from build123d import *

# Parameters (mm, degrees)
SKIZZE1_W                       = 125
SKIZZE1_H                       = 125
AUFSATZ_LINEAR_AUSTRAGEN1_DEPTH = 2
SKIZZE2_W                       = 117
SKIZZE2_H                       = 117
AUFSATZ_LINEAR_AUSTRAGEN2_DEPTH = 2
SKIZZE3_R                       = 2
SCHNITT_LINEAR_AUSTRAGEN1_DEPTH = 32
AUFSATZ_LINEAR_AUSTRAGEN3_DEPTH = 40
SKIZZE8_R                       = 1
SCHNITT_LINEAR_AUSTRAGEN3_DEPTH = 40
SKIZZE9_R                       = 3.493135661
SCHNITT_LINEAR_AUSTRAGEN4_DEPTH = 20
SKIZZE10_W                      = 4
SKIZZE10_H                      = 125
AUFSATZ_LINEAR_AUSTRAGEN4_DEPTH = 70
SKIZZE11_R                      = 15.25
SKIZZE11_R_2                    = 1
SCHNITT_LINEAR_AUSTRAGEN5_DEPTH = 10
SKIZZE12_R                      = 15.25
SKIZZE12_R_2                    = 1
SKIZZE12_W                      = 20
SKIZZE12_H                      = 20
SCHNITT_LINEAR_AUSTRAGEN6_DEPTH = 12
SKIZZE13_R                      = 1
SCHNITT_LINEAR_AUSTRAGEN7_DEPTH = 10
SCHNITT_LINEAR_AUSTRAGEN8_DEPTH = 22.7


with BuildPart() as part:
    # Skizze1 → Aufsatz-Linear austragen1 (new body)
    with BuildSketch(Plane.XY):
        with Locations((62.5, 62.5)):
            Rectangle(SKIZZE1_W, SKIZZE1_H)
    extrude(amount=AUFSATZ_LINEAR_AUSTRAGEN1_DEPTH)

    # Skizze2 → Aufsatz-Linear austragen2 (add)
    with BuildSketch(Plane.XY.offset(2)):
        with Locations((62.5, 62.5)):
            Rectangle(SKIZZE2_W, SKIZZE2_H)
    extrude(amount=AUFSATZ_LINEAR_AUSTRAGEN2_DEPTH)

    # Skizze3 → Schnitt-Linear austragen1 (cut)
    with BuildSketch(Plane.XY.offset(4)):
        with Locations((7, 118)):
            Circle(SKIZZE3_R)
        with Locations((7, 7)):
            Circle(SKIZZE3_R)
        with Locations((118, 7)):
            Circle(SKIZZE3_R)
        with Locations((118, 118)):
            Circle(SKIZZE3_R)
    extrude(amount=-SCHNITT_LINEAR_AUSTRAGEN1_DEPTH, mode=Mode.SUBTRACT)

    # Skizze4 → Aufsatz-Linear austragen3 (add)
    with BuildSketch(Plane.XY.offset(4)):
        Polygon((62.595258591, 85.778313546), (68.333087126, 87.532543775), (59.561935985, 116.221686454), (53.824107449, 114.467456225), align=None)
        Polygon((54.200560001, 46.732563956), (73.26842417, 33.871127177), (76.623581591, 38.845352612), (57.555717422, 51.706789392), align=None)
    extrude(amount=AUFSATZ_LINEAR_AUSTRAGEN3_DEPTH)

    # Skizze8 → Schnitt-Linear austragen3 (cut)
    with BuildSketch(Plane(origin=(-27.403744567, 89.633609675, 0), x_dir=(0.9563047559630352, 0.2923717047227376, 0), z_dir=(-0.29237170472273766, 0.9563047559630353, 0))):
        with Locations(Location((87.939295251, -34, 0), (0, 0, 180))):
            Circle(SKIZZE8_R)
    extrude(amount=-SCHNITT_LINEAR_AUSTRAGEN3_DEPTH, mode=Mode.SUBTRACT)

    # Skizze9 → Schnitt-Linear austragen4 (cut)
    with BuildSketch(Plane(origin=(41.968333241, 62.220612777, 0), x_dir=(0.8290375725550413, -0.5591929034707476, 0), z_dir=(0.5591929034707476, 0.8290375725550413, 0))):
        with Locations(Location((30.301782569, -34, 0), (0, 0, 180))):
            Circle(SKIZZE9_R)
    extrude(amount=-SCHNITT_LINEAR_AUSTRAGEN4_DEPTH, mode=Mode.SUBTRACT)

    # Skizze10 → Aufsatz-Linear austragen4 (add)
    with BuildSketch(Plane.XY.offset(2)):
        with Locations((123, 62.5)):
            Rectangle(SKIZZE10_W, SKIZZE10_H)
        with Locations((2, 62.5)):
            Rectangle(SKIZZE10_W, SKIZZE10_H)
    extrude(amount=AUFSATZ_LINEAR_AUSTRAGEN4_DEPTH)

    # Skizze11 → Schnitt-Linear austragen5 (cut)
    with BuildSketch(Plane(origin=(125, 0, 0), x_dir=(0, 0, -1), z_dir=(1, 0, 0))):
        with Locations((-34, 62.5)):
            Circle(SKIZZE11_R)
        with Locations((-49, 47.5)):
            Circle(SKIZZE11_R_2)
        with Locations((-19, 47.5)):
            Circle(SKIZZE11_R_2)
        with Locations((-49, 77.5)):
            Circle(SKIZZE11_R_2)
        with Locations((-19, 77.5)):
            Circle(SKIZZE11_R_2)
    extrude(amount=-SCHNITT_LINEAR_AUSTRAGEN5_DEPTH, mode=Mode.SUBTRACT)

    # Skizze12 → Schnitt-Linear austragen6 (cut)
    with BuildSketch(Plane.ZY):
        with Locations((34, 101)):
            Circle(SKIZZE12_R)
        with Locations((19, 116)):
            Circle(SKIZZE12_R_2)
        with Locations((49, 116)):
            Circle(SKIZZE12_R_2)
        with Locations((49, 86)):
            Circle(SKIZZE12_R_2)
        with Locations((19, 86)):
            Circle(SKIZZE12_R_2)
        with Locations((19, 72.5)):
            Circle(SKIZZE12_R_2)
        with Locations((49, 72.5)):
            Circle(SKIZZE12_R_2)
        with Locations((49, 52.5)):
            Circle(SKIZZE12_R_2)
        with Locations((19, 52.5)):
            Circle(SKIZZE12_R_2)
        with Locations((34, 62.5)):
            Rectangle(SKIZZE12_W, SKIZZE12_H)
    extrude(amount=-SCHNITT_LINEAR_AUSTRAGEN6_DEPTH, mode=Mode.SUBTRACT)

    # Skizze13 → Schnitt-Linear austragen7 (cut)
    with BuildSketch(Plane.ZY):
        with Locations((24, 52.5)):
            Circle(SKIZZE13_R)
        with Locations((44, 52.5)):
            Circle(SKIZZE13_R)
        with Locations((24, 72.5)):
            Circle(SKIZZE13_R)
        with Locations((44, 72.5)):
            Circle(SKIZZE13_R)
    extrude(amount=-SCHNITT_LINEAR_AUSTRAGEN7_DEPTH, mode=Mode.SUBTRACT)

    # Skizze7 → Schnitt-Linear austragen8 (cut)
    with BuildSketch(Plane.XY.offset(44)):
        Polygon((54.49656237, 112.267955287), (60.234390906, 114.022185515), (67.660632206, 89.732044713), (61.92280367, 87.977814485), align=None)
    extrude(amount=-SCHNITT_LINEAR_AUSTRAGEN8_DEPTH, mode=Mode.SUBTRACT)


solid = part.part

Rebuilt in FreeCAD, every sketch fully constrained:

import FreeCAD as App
import Part
import Sketcher
from FreeCAD import Vector
Q = App.Units.Quantity


def add_polygon(sketch, points):
    """Adds a closed chain of lines whose ends are joined by coincident constraints."""
    first, n = sketch.GeometryCount, len(points)
    for a, b in zip(points, points[1:] + points[:1]):
        sketch.addGeometry(Part.LineSegment(App.Vector(*a, 0), App.Vector(*b, 0)), False)
    for i in range(n):
        sketch.addConstraint(Sketcher.Constraint("Coincident", first + i, 2, first + (i + 1) % n, 1))

doc = App.newDocument("Part")
body = doc.addObject("PartDesign::Body", "Body")

# Sketch on XY plane
sketch1 = body.newObject("Sketcher::SketchObject", "Sketch")
sketch1.AttachmentSupport = (doc.getObject("XY_Plane"), [""])
sketch1.MapMode = "FlatFace"
add_polygon(sketch1, [(0, 125), (0, 0), (125, 0), (125, 125)])  # lines 0-3
sketch1.addConstraint(Sketcher.Constraint("Vertical", 0))
sketch1.addConstraint(Sketcher.Constraint("Horizontal", 1))
sketch1.addConstraint(Sketcher.Constraint("Vertical", 2))
sketch1.addConstraint(Sketcher.Constraint("Horizontal", 3))
sketch1.addConstraint(Sketcher.Constraint("Coincident", 0, 2, -1, 1))
sketch1.addConstraint(Sketcher.Constraint("Equal", 3, 0))
sketch1.addConstraint(Sketcher.Constraint("DistanceX", 1, 1, 1, 2, Q("125 mm")))
pad1 = body.newObject("PartDesign::Pad", "Pad")
pad1.Profile = sketch1
pad1.Length = 2

# Sketch on XY plane
sketch2 = body.newObject("Sketcher::SketchObject", "Sketch001")
sketch2.AttachmentSupport = (doc.getObject("XY_Plane"), [""])
sketch2.MapMode = "FlatFace"
sketch2.AttachmentOffset = App.Placement(Vector(0, 0, 2), App.Rotation())
add_polygon(sketch2, [(4, 121), (4, 4), (121, 4), (121, 121)])  # lines 0-3
sketch2.addConstraint(Sketcher.Constraint("Vertical", 0))
sketch2.addConstraint(Sketcher.Constraint("Horizontal", 1))
sketch2.addConstraint(Sketcher.Constraint("Vertical", 2))
sketch2.addConstraint(Sketcher.Constraint("Horizontal", 3))
sketch2.addConstraint(Sketcher.Constraint("Equal", 3, 0))
sketch2.addConstraint(Sketcher.Constraint("DistanceX", 1, 1, 1, 2, Q("117 mm")))
sketch2.addConstraint(Sketcher.Constraint("DistanceX", -1, 1, 0, 2, Q("4 mm")))
sketch2.addConstraint(Sketcher.Constraint("DistanceY", -1, 1, 0, 2, Q("4 mm")))
pad2 = body.newObject("PartDesign::Pad", "Pad001")
pad2.Profile = sketch2
pad2.Length = 2

# Sketch on XY plane
sketch3 = body.newObject("Sketcher::SketchObject", "Sketch002")
sketch3.AttachmentSupport = (doc.getObject("XY_Plane"), [""])
sketch3.MapMode = "FlatFace"
sketch3.AttachmentOffset = App.Placement(Vector(0, 0, 4), App.Rotation())
sketch3.addGeometry(Part.Circle(Vector(7, 118, 0), Vector(0, 0, 1), 2), False)
sketch3.addGeometry(Part.Circle(Vector(7, 7, 0), Vector(0, 0, 1), 2), False)
sketch3.addGeometry(Part.Circle(Vector(118, 7, 0), Vector(0, 0, 1), 2), False)
sketch3.addGeometry(Part.Circle(Vector(118, 118, 0), Vector(0, 0, 1), 2), False)
sketch3.addConstraint(Sketcher.Constraint("Equal", 0, 1))
sketch3.addConstraint(Sketcher.Constraint("Equal", 1, 2))
sketch3.addConstraint(Sketcher.Constraint("Equal", 2, 3))
sketch3.addConstraint(Sketcher.Constraint("Horizontal", 1, 3, 2, 3))
sketch3.addConstraint(Sketcher.Constraint("Horizontal", 0, 3, 3, 3))
sketch3.addConstraint(Sketcher.Constraint("Vertical", 0, 3, 1, 3))
sketch3.addConstraint(Sketcher.Constraint("Vertical", 2, 3, 3, 3))
sketch3.addConstraint(Sketcher.Constraint("Diameter", 0, Q("4 mm")))
sketch3.addConstraint(Sketcher.Constraint("DistanceX", -1, 1, 0, 3, Q("7 mm")))
sketch3.addConstraint(Sketcher.Constraint("DistanceY", -1, 1, 0, 3, Q("118 mm")))
sketch3.addConstraint(Sketcher.Constraint("DistanceY", -1, 1, 1, 3, Q("7 mm")))
sketch3.addConstraint(Sketcher.Constraint("DistanceX", -1, 1, 2, 3, Q("118 mm")))
pocket1 = body.newObject("PartDesign::Pocket", "Pocket")
pocket1.Profile = sketch3
pocket1.Length = 32

# Sketch on XY plane
sketch4 = body.newObject("Sketcher::SketchObject", "Sketch003")
sketch4.AttachmentSupport = (doc.getObject("XY_Plane"), [""])
sketch4.MapMode = "FlatFace"
sketch4.AttachmentOffset = App.Placement(Vector(0, 0, 4), App.Rotation())
add_polygon(sketch4, [(63, 86), (68, 88), (60, 116), (54, 114)])  # lines 0-3
add_polygon(sketch4, [(54, 47), (73, 34), (77, 39), (58, 52)])  # lines 4-7
sketch4.addConstraint(Sketcher.Constraint("Perpendicular", 0, 1))
sketch4.addConstraint(Sketcher.Constraint("Perpendicular", 1, 2))
sketch4.addConstraint(Sketcher.Constraint("Perpendicular", 2, 3))
sketch4.addConstraint(Sketcher.Constraint("Perpendicular", 4, 5))
sketch4.addConstraint(Sketcher.Constraint("Perpendicular", 5, 6))
sketch4.addConstraint(Sketcher.Constraint("Perpendicular", 6, 7))
sketch4.addConstraint(Sketcher.Constraint("Equal", 2, 5))
sketch4.addConstraint(Sketcher.Constraint("Angle", 0, Q("17 deg")))
sketch4.addConstraint(Sketcher.Constraint("Angle", 4, Q("-34 deg")))
sketch4.addConstraint(Sketcher.Constraint("Distance", 0, Q("6 mm")))
sketch4.addConstraint(Sketcher.Constraint("Distance", 1, Q("30 mm")))
sketch4.addConstraint(Sketcher.Constraint("Distance", 4, Q("23 mm")))
sketch4.addConstraint(Sketcher.Constraint("DistanceX", 7, 2, 3, 2, Q("8.394699 mm")))
sketch4.addConstraint(Sketcher.Constraint("DistanceX", -1, 1, 3, 2, Q("62.595259 mm")))
sketch4.addConstraint(Sketcher.Constraint("DistanceY", -1, 1, 6, 2, Q("51.706789 mm")))
sketch4.addConstraint(Sketcher.Constraint("DistanceY", 4, 2, 2, 2, Q("80.596329 mm")))
pad3 = body.newObject("PartDesign::Pad", "Pad002")
pad3.Profile = sketch4
pad3.Length = 40

# Sketch on an angled plane
sketch5 = body.newObject("Sketcher::SketchObject", "Sketch004")
sketch5.Placement = App.Placement(Vector(-27.403745, 89.63361, 0), App.Rotation(Vector(0.956304756, 0.292371705, 0), Vector(0, 0, -1), Vector(-0.292371705, 0.956304756, 0), "ZXY"))
sketch5.addGeometry(Part.Circle(Vector(87.9, -34, 0), Vector(0, 0, 1), 1), False)
sketch5.addConstraint(Sketcher.Constraint("Diameter", 0, Q("2 mm")))
sketch5.addConstraint(Sketcher.Constraint("DistanceY", 0, 3, -1, 1, Q("34 mm")))
sketch5.addConstraint(Sketcher.Constraint("DistanceX", -1, 1, 0, 3, Q("87.939295 mm")))
pocket2 = body.newObject("PartDesign::Pocket", "Pocket001")
pocket2.Profile = sketch5
pocket2.Length = 40

# Sketch on an angled plane
sketch6 = body.newObject("Sketcher::SketchObject", "Sketch005")
sketch6.Placement = App.Placement(Vector(41.968333, 62.220613, 0), App.Rotation(Vector(0.829037573, -0.559192903, 0), Vector(0, 0, -1), Vector(0.559192903, 0.829037573, 0), "ZXY"))
sketch6.addGeometry(Part.Circle(Vector(30.3, -34, 0), Vector(0, 0, 1), 3.5), False)
sketch6.addConstraint(Sketcher.Constraint("DistanceY", 0, 3, -1, 1, Q("34 mm")))
sketch6.addConstraint(Sketcher.Constraint("Diameter", 0, Q("6.986271 mm")))
sketch6.addConstraint(Sketcher.Constraint("DistanceX", -1, 1, 0, 3, Q("30.301783 mm")))
pocket3 = body.newObject("PartDesign::Pocket", "Pocket002")
pocket3.Profile = sketch6
pocket3.Length = 20

# Sketch on XY plane
sketch7 = body.newObject("Sketcher::SketchObject", "Sketch006")
sketch7.AttachmentSupport = (doc.getObject("XY_Plane"), [""])
sketch7.MapMode = "FlatFace"
sketch7.AttachmentOffset = App.Placement(Vector(0, 0, 2), App.Rotation())
add_polygon(sketch7, [(121, 125), (121, 0), (125, 0), (125, 125)])  # lines 0-3
add_polygon(sketch7, [(0, 125), (0, 0), (4, 0), (4, 125)])  # lines 4-7
sketch7.addConstraint(Sketcher.Constraint("Vertical", 0))
sketch7.addConstraint(Sketcher.Constraint("Horizontal", 1))
sketch7.addConstraint(Sketcher.Constraint("Vertical", 2))
sketch7.addConstraint(Sketcher.Constraint("Horizontal", 3))
sketch7.addConstraint(Sketcher.Constraint("Vertical", 4))
sketch7.addConstraint(Sketcher.Constraint("Horizontal", 5))
sketch7.addConstraint(Sketcher.Constraint("Vertical", 6))
sketch7.addConstraint(Sketcher.Constraint("Horizontal", 7))
sketch7.addConstraint(Sketcher.Constraint("Coincident", 4, 2, -1, 1))
sketch7.addConstraint(Sketcher.Constraint("PointOnObject", 0, 2, -1))
sketch7.addConstraint(Sketcher.Constraint("Horizontal", 3, 2, 6, 2))
sketch7.addConstraint(Sketcher.Constraint("Equal", 3, 5))
sketch7.addConstraint(Sketcher.Constraint("DistanceX", 1, 1, 1, 2, Q("4 mm")))
sketch7.addConstraint(Sketcher.Constraint("DistanceY", 0, 2, 0, 1, Q("125 mm")))
sketch7.addConstraint(Sketcher.Constraint("DistanceX", -1, 1, 0, 2, Q("121 mm")))
pad4 = body.newObject("PartDesign::Pad", "Pad003")
pad4.Profile = sketch7
pad4.Length = 70

# Sketch on YZ plane
sketch8 = body.newObject("Sketcher::SketchObject", "Sketch007")
sketch8.AttachmentSupport = (doc.getObject("YZ_Plane"), [""])
sketch8.MapMode = "FlatFace"
sketch8.AttachmentOffset = App.Placement(Vector(0, 0, 125), App.Rotation())
sketch8.addGeometry(Part.Circle(Vector(62.5, 34, 0), Vector(0, 0, 1), 15.2), False)
sketch8.addGeometry(Part.Circle(Vector(47.5, 49, 0), Vector(0, 0, 1), 1), False)
sketch8.addGeometry(Part.Circle(Vector(47.5, 19, 0), Vector(0, 0, 1), 1), False)
sketch8.addGeometry(Part.Circle(Vector(77.5, 49, 0), Vector(0, 0, 1), 1), False)
sketch8.addGeometry(Part.Circle(Vector(77.5, 19, 0), Vector(0, 0, 1), 1), False)
sketch8.addConstraint(Sketcher.Constraint("Equal", 1, 2))
sketch8.addConstraint(Sketcher.Constraint("Equal", 2, 3))
sketch8.addConstraint(Sketcher.Constraint("Equal", 3, 4))
sketch8.addConstraint(Sketcher.Constraint("Horizontal", 1, 3, 3, 3))
sketch8.addConstraint(Sketcher.Constraint("Horizontal", 2, 3, 4, 3))
sketch8.addConstraint(Sketcher.Constraint("Vertical", 1, 3, 2, 3))
sketch8.addConstraint(Sketcher.Constraint("Vertical", 3, 3, 4, 3))
sketch8.addConstraint(Sketcher.Constraint("Diameter", 1, Q("2 mm")))
sketch8.addConstraint(Sketcher.Constraint("Diameter", 0, Q("30.5 mm")))
sketch8.addConstraint(Sketcher.Constraint("DistanceY", -1, 1, 0, 3, Q("34 mm")))
sketch8.addConstraint(Sketcher.Constraint("DistanceY", -1, 1, 1, 3, Q("49 mm")))
sketch8.addConstraint(Sketcher.Constraint("DistanceY", -1, 1, 2, 3, Q("19 mm")))
sketch8.addConstraint(Sketcher.Constraint("DistanceX", 1, 3, 0, 3, Q("15 mm")))
sketch8.addConstraint(Sketcher.Constraint("DistanceX", 0, 3, 3, 3, Q("15 mm")))
sketch8.addConstraint(Sketcher.Constraint("DistanceX", -1, 1, 0, 3, Q("62.5 mm")))
pocket4 = body.newObject("PartDesign::Pocket", "Pocket003")
pocket4.Profile = sketch8
pocket4.Length = 10

# Sketch on YZ plane
sketch9 = body.newObject("Sketcher::SketchObject", "Sketch008")
sketch9.AttachmentSupport = (doc.getObject("YZ_Plane"), [""])
sketch9.MapMode = "FlatFace"
sketch9.addGeometry(Part.Circle(Vector(101, 34, 0), Vector(0, 0, 1), 15.2), False)  # 0
sketch9.addGeometry(Part.Circle(Vector(116, 19, 0), Vector(0, 0, 1), 1), False)  # 1
sketch9.addGeometry(Part.Circle(Vector(116, 49, 0), Vector(0, 0, 1), 1), False)  # 2
sketch9.addGeometry(Part.Circle(Vector(86, 49, 0), Vector(0, 0, 1), 1), False)  # 3
sketch9.addGeometry(Part.Circle(Vector(86, 19, 0), Vector(0, 0, 1), 1), False)  # 4
sketch9.addGeometry(Part.Circle(Vector(72.5, 19, 0), Vector(0, 0, 1), 1), False)  # 5
sketch9.addGeometry(Part.Circle(Vector(72.5, 49, 0), Vector(0, 0, 1), 1), False)  # 6
sketch9.addGeometry(Part.Circle(Vector(52.5, 49, 0), Vector(0, 0, 1), 1), False)  # 7
sketch9.addGeometry(Part.Circle(Vector(52.5, 19, 0), Vector(0, 0, 1), 1), False)  # 8
add_polygon(sketch9, [(72.5, 24), (52.5, 24), (52.5, 44), (72.5, 44)])  # lines 9-12
sketch9.addConstraint(Sketcher.Constraint("Horizontal", 9))
sketch9.addConstraint(Sketcher.Constraint("Vertical", 10))
sketch9.addConstraint(Sketcher.Constraint("Horizontal", 11))
sketch9.addConstraint(Sketcher.Constraint("Vertical", 12))
sketch9.addConstraint(Sketcher.Constraint("Equal", 1, 2))
sketch9.addConstraint(Sketcher.Constraint("Equal", 2, 3))
sketch9.addConstraint(Sketcher.Constraint("Equal", 3, 4))
sketch9.addConstraint(Sketcher.Constraint("Equal", 4, 5))
sketch9.addConstraint(Sketcher.Constraint("Equal", 5, 6))
sketch9.addConstraint(Sketcher.Constraint("Equal", 6, 7))
sketch9.addConstraint(Sketcher.Constraint("Equal", 7, 8))
sketch9.addConstraint(Sketcher.Constraint("Horizontal", 2, 3, 3, 3))
sketch9.addConstraint(Sketcher.Constraint("Horizontal", 1, 3, 4, 3))
sketch9.addConstraint(Sketcher.Constraint("Horizontal", 4, 3, 5, 3))
sketch9.addConstraint(Sketcher.Constraint("Horizontal", 3, 3, 6, 3))
sketch9.addConstraint(Sketcher.Constraint("Horizontal", 6, 3, 7, 3))
sketch9.addConstraint(Sketcher.Constraint("Horizontal", 5, 3, 8, 3))
sketch9.addConstraint(Sketcher.Constraint("Vertical", 1, 3, 2, 3))
sketch9.addConstraint(Sketcher.Constraint("Vertical", 3, 3, 4, 3))
sketch9.addConstraint(Sketcher.Constraint("Vertical", 5, 3, 6, 3))
sketch9.addConstraint(Sketcher.Constraint("Vertical", 7, 3, 8, 3))
sketch9.addConstraint(Sketcher.Constraint("Vertical", 8, 3, 9, 2))
sketch9.addConstraint(Sketcher.Constraint("Vertical", 6, 3, 11, 2))
sketch9.addConstraint(Sketcher.Constraint("Equal", 11, 10))
sketch9.addConstraint(Sketcher.Constraint("Diameter", 1, Q("2 mm")))
sketch9.addConstraint(Sketcher.Constraint("Diameter", 0, Q("30.5 mm")))
sketch9.addConstraint(Sketcher.Constraint("DistanceX", 9, 2, 9, 1, Q("20 mm")))
sketch9.addConstraint(Sketcher.Constraint("DistanceX", -1, 1, 0, 3, Q("101 mm")))
sketch9.addConstraint(Sketcher.Constraint("DistanceY", -1, 1, 0, 3, Q("34 mm")))
sketch9.addConstraint(Sketcher.Constraint("DistanceX", -1, 1, 1, 3, Q("116 mm")))
sketch9.addConstraint(Sketcher.Constraint("DistanceY", -1, 1, 1, 3, Q("19 mm")))
sketch9.addConstraint(Sketcher.Constraint("DistanceY", -1, 1, 2, 3, Q("49 mm")))
sketch9.addConstraint(Sketcher.Constraint("DistanceX", -1, 1, 3, 3, Q("86 mm")))
sketch9.addConstraint(Sketcher.Constraint("DistanceY", -1, 1, 9, 2, Q("24 mm")))
sketch9.addConstraint(Sketcher.Constraint("DistanceX", -1, 1, 5, 3, Q("72.5 mm")))
pocket5 = body.newObject("PartDesign::Pocket", "Pocket004")
pocket5.Profile = sketch9
pocket5.Length = 12
pocket5.Reversed = True

# Sketch on YZ plane
sketch10 = body.newObject("Sketcher::SketchObject", "Sketch009")
sketch10.AttachmentSupport = (doc.getObject("YZ_Plane"), [""])
sketch10.MapMode = "FlatFace"
sketch10.addGeometry(Part.Circle(Vector(52.5, 24, 0), Vector(0, 0, 1), 1), False)
sketch10.addGeometry(Part.Circle(Vector(52.5, 44, 0), Vector(0, 0, 1), 1), False)
sketch10.addGeometry(Part.Circle(Vector(72.5, 24, 0), Vector(0, 0, 1), 1), False)
sketch10.addGeometry(Part.Circle(Vector(72.5, 44, 0), Vector(0, 0, 1), 1), False)
sketch10.addConstraint(Sketcher.Constraint("Equal", 0, 1))
sketch10.addConstraint(Sketcher.Constraint("Equal", 1, 2))
sketch10.addConstraint(Sketcher.Constraint("Equal", 2, 3))
sketch10.addConstraint(Sketcher.Constraint("Horizontal", 0, 3, 2, 3))
sketch10.addConstraint(Sketcher.Constraint("Horizontal", 1, 3, 3, 3))
sketch10.addConstraint(Sketcher.Constraint("Vertical", 0, 3, 1, 3))
sketch10.addConstraint(Sketcher.Constraint("Vertical", 2, 3, 3, 3))
sketch10.addConstraint(Sketcher.Constraint("Diameter", 0, Q("2 mm")))
sketch10.addConstraint(Sketcher.Constraint("DistanceY", -1, 1, 0, 3, Q("24 mm")))
sketch10.addConstraint(Sketcher.Constraint("DistanceY", -1, 1, 1, 3, Q("44 mm")))
sketch10.addConstraint(Sketcher.Constraint("DistanceX", 0, 3, 2, 3, Q("20 mm")))
sketch10.addConstraint(Sketcher.Constraint("DistanceX", -1, 1, 0, 3, Q("52.5 mm")))
pocket6 = body.newObject("PartDesign::Pocket", "Pocket005")
pocket6.Profile = sketch10
pocket6.Length = 10
pocket6.Reversed = True

# Sketch on XY plane
sketch11 = body.newObject("Sketcher::SketchObject", "Sketch010")
sketch11.AttachmentSupport = (doc.getObject("XY_Plane"), [""])
sketch11.MapMode = "FlatFace"
sketch11.AttachmentOffset = App.Placement(Vector(0, 0, 44), App.Rotation())
add_polygon(sketch11, [(60, 114), (54, 112), (62, 88), (68, 90)])  # lines 0-3
sketch11.addConstraint(Sketcher.Constraint("Perpendicular", 0, 1))
sketch11.addConstraint(Sketcher.Constraint("Perpendicular", 1, 2))
sketch11.addConstraint(Sketcher.Constraint("Perpendicular", 2, 3))
sketch11.addConstraint(Sketcher.Constraint("Angle", 0, Q("-163 deg")))
sketch11.addConstraint(Sketcher.Constraint("Distance", 0, Q("6 mm")))
sketch11.addConstraint(Sketcher.Constraint("Distance", 1, Q("25.4 mm")))
sketch11.addConstraint(Sketcher.Constraint("DistanceX", -1, 1, 3, 2, Q("60.234391 mm")))
sketch11.addConstraint(Sketcher.Constraint("DistanceY", -1, 1, 0, 2, Q("112.267955 mm")))
pocket7 = body.newObject("PartDesign::Pocket", "Pocket006")
pocket7.Profile = sketch11
pocket7.Length = 22.7

doc.recompute()
